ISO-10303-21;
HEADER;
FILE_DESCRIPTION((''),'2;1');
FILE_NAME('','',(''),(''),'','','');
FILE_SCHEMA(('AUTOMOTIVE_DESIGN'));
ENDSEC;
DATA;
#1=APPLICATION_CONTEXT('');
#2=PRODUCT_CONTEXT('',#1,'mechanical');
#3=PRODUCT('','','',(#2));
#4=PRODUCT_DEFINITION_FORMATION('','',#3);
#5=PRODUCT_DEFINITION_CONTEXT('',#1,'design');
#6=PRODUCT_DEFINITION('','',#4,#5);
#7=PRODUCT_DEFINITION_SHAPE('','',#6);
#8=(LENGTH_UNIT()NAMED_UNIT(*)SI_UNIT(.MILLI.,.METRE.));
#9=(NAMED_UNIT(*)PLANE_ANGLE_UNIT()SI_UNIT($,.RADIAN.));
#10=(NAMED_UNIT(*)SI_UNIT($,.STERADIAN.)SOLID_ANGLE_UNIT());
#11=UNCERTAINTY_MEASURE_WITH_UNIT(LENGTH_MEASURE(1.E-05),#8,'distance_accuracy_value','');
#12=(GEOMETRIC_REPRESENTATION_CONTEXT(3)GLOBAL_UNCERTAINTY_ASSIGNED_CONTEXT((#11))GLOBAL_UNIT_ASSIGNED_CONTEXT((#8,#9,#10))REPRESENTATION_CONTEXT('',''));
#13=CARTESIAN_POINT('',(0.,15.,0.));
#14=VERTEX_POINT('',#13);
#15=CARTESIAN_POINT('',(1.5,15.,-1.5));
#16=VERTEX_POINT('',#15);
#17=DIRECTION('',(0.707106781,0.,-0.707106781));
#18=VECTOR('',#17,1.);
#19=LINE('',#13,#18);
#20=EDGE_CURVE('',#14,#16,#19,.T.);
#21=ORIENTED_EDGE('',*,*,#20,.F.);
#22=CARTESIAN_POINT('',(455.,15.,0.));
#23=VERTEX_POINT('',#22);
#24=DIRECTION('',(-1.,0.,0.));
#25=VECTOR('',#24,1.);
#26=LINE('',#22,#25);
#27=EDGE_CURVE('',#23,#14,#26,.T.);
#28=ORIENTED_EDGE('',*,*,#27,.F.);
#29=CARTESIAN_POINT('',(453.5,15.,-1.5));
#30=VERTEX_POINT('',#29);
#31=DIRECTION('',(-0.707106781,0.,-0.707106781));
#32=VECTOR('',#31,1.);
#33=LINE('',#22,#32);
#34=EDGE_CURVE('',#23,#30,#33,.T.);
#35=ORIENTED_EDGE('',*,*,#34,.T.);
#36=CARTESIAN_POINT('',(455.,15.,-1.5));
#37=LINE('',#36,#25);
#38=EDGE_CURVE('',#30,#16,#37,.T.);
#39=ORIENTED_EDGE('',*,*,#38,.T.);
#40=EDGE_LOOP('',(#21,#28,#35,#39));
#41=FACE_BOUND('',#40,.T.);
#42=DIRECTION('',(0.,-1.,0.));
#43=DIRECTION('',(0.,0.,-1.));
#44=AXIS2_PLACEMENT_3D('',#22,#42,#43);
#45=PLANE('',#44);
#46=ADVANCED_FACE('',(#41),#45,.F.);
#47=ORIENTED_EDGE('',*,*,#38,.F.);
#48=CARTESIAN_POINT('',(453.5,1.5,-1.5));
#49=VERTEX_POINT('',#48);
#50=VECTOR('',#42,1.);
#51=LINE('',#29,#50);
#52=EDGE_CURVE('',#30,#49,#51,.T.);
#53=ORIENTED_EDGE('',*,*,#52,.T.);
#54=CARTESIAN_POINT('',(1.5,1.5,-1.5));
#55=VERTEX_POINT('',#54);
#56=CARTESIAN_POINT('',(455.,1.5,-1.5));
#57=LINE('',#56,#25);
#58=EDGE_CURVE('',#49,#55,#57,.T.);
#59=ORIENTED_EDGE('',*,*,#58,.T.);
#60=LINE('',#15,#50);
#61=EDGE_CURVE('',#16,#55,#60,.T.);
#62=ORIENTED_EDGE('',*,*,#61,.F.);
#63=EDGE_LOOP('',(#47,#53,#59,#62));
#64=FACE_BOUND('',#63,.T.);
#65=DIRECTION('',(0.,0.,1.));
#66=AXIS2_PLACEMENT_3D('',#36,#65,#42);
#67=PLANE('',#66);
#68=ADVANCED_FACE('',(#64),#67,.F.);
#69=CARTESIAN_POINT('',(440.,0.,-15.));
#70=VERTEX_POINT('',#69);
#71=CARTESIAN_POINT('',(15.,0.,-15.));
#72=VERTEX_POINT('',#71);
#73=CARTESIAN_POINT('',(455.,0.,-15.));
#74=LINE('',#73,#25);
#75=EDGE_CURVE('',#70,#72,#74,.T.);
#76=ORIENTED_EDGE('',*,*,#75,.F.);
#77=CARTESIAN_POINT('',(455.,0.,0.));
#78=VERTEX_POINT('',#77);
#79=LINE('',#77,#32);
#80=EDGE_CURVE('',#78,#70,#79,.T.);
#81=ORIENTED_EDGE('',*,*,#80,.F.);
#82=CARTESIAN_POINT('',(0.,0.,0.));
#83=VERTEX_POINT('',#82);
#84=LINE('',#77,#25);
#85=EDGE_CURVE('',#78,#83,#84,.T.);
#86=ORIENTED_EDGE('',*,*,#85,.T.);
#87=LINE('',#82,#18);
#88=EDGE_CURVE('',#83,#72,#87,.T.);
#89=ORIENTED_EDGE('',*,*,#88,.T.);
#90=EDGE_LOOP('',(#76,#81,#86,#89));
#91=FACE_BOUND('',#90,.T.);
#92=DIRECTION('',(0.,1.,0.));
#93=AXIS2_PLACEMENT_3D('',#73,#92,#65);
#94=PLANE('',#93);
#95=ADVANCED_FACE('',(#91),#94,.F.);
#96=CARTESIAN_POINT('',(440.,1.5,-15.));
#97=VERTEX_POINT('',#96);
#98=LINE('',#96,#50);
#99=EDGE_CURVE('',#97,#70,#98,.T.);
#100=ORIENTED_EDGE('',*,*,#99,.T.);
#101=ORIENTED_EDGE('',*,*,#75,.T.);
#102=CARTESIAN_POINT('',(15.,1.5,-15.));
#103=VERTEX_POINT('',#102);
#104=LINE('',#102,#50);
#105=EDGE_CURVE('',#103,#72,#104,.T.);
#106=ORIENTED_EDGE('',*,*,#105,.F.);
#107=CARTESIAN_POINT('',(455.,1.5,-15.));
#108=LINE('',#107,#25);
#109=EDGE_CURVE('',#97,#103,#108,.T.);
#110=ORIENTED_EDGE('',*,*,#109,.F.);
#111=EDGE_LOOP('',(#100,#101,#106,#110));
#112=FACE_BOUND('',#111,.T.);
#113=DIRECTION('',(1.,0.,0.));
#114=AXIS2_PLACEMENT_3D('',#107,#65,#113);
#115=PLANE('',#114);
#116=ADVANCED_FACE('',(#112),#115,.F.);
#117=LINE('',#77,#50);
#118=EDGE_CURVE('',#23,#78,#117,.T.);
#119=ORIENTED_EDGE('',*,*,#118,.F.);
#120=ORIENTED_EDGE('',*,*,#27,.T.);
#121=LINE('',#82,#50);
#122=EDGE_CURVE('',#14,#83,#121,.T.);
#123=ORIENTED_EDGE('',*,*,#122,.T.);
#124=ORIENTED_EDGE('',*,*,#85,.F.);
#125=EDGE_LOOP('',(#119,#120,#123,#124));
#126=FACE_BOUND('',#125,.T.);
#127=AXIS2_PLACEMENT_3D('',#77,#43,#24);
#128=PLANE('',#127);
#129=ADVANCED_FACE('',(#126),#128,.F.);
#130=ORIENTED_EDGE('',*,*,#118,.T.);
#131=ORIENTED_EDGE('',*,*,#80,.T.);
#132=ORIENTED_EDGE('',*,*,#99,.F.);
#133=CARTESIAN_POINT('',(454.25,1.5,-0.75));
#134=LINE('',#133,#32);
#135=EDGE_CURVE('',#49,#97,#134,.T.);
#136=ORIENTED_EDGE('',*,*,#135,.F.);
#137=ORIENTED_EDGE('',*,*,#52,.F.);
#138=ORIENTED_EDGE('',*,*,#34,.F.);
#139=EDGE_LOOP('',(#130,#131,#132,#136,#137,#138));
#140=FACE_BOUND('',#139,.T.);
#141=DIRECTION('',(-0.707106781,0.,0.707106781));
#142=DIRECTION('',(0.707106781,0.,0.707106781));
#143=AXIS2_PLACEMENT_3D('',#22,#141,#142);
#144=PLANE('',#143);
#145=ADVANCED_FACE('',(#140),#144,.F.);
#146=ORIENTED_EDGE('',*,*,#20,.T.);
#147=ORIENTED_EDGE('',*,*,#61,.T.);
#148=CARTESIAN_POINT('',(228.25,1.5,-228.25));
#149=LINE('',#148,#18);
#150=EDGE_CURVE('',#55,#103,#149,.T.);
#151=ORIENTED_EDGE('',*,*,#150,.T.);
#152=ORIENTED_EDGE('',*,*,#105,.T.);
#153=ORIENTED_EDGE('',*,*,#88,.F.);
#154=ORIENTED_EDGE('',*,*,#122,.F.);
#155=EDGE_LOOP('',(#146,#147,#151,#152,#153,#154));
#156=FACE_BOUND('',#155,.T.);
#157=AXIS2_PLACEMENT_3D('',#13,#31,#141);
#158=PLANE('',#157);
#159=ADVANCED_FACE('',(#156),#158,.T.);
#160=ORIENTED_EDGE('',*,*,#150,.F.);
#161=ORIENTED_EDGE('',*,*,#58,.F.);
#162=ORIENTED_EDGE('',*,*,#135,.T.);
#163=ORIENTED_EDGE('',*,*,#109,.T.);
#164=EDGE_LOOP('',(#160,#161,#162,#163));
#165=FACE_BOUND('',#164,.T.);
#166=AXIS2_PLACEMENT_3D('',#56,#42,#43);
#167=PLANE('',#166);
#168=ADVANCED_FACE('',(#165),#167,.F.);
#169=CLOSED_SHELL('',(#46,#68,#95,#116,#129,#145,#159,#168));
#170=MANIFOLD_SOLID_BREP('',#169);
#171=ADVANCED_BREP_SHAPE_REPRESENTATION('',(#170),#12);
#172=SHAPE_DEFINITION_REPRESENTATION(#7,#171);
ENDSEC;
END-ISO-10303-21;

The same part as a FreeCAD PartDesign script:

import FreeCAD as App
import Part
import Sketcher

V = App.Vector


def add_polygon(sketch, points):
    """Adds a closed chain of lines whose ends are joined by coincident constraints."""
    first, n = sketch.GeometryCount, len(points)
    for a, b in zip(points, points[1:] + points[:1]):
        sketch.addGeometry(Part.LineSegment(App.Vector(*a, 0), App.Vector(*b, 0)), False)
    for i in range(n):
        sketch.addConstraint(Sketcher.Constraint("Coincident", first + i, 2, first + (i + 1) % n, 1))

doc = App.newDocument("Part")
body = doc.addObject("PartDesign::Body", "Body")

sketch1 = body.newObject("Sketcher::SketchObject", "Sketch")
sketch1.AttachmentSupport = (doc.getObject("YZ_Plane"), [""])
sketch1.MapMode = "FlatFace"
add_polygon(sketch1, [(15, 0), (0, 0), (0, -15), (1.5, -15), (1.5, -1.5), (15, -1.5)])
sketch1.addConstraint([
    Sketcher.Constraint("Horizontal", 0),
    Sketcher.Constraint("Vertical", 1),
    Sketcher.Constraint("Horizontal", 2),
    Sketcher.Constraint("Vertical", 3),
    Sketcher.Constraint("Horizontal", 4),
    Sketcher.Constraint("Vertical", 5),
    Sketcher.Constraint("Coincident", 0, 2, -1, 1),
    Sketcher.Constraint("Equal", 0, 1),
    Sketcher.Constraint("Equal", 4, 3),
    Sketcher.Constraint("DistanceX", 0, 2, 0, 1, 15.0),
    Sketcher.Constraint("DistanceX", 2, 1, 2, 2, 1.5),
])
pad1 = body.newObject("PartDesign::Pad", "Pad")
pad1.Profile = sketch1
pad1.Length = 455

sketch2 = body.newObject("Sketcher::SketchObject", "Sketch001")
sketch2.AttachmentSupport = (doc.getObject("XZ_Plane"), [""])
sketch2.MapMode = "FlatFace"
add_polygon(sketch2, [(455, 0), (434, -21), (455, -21)])
sketch2.addConstraint([
    Sketcher.Constraint("Horizontal", 1),
    Sketcher.Constraint("Vertical", 2),
    Sketcher.Constraint("PointOnObject", 2, 2, -1),
    Sketcher.Constraint("Equal", 1, 2),
    Sketcher.Constraint("DistanceX", -1, 1, 1, 2, 455.0),
    Sketcher.Constraint("Distance", 0, 29.452761),
])
pocket1 = body.newObject("PartDesign::Pocket", "Pocket")
pocket1.Profile = sketch2
pocket1.Type = "ThroughAll"
doc.recompute()

datumplane = body.newObject("PartDesign::Plane", "DatumPlane")
datumplane.AttachmentSupport = (doc.getObject("YZ_Plane"), [""])
datumplane.MapMode = "FlatFace"
datumplane.AttachmentOffset = App.Placement(V(0, 0, 227.5), App.Rotation())
mirrored = body.newObject("PartDesign::Mirrored", "Mirrored")
mirrored.Originals = [pocket1]
mirrored.MirrorPlane = (datumplane, [""])
body.Tip = mirrored

doc.recompute()
